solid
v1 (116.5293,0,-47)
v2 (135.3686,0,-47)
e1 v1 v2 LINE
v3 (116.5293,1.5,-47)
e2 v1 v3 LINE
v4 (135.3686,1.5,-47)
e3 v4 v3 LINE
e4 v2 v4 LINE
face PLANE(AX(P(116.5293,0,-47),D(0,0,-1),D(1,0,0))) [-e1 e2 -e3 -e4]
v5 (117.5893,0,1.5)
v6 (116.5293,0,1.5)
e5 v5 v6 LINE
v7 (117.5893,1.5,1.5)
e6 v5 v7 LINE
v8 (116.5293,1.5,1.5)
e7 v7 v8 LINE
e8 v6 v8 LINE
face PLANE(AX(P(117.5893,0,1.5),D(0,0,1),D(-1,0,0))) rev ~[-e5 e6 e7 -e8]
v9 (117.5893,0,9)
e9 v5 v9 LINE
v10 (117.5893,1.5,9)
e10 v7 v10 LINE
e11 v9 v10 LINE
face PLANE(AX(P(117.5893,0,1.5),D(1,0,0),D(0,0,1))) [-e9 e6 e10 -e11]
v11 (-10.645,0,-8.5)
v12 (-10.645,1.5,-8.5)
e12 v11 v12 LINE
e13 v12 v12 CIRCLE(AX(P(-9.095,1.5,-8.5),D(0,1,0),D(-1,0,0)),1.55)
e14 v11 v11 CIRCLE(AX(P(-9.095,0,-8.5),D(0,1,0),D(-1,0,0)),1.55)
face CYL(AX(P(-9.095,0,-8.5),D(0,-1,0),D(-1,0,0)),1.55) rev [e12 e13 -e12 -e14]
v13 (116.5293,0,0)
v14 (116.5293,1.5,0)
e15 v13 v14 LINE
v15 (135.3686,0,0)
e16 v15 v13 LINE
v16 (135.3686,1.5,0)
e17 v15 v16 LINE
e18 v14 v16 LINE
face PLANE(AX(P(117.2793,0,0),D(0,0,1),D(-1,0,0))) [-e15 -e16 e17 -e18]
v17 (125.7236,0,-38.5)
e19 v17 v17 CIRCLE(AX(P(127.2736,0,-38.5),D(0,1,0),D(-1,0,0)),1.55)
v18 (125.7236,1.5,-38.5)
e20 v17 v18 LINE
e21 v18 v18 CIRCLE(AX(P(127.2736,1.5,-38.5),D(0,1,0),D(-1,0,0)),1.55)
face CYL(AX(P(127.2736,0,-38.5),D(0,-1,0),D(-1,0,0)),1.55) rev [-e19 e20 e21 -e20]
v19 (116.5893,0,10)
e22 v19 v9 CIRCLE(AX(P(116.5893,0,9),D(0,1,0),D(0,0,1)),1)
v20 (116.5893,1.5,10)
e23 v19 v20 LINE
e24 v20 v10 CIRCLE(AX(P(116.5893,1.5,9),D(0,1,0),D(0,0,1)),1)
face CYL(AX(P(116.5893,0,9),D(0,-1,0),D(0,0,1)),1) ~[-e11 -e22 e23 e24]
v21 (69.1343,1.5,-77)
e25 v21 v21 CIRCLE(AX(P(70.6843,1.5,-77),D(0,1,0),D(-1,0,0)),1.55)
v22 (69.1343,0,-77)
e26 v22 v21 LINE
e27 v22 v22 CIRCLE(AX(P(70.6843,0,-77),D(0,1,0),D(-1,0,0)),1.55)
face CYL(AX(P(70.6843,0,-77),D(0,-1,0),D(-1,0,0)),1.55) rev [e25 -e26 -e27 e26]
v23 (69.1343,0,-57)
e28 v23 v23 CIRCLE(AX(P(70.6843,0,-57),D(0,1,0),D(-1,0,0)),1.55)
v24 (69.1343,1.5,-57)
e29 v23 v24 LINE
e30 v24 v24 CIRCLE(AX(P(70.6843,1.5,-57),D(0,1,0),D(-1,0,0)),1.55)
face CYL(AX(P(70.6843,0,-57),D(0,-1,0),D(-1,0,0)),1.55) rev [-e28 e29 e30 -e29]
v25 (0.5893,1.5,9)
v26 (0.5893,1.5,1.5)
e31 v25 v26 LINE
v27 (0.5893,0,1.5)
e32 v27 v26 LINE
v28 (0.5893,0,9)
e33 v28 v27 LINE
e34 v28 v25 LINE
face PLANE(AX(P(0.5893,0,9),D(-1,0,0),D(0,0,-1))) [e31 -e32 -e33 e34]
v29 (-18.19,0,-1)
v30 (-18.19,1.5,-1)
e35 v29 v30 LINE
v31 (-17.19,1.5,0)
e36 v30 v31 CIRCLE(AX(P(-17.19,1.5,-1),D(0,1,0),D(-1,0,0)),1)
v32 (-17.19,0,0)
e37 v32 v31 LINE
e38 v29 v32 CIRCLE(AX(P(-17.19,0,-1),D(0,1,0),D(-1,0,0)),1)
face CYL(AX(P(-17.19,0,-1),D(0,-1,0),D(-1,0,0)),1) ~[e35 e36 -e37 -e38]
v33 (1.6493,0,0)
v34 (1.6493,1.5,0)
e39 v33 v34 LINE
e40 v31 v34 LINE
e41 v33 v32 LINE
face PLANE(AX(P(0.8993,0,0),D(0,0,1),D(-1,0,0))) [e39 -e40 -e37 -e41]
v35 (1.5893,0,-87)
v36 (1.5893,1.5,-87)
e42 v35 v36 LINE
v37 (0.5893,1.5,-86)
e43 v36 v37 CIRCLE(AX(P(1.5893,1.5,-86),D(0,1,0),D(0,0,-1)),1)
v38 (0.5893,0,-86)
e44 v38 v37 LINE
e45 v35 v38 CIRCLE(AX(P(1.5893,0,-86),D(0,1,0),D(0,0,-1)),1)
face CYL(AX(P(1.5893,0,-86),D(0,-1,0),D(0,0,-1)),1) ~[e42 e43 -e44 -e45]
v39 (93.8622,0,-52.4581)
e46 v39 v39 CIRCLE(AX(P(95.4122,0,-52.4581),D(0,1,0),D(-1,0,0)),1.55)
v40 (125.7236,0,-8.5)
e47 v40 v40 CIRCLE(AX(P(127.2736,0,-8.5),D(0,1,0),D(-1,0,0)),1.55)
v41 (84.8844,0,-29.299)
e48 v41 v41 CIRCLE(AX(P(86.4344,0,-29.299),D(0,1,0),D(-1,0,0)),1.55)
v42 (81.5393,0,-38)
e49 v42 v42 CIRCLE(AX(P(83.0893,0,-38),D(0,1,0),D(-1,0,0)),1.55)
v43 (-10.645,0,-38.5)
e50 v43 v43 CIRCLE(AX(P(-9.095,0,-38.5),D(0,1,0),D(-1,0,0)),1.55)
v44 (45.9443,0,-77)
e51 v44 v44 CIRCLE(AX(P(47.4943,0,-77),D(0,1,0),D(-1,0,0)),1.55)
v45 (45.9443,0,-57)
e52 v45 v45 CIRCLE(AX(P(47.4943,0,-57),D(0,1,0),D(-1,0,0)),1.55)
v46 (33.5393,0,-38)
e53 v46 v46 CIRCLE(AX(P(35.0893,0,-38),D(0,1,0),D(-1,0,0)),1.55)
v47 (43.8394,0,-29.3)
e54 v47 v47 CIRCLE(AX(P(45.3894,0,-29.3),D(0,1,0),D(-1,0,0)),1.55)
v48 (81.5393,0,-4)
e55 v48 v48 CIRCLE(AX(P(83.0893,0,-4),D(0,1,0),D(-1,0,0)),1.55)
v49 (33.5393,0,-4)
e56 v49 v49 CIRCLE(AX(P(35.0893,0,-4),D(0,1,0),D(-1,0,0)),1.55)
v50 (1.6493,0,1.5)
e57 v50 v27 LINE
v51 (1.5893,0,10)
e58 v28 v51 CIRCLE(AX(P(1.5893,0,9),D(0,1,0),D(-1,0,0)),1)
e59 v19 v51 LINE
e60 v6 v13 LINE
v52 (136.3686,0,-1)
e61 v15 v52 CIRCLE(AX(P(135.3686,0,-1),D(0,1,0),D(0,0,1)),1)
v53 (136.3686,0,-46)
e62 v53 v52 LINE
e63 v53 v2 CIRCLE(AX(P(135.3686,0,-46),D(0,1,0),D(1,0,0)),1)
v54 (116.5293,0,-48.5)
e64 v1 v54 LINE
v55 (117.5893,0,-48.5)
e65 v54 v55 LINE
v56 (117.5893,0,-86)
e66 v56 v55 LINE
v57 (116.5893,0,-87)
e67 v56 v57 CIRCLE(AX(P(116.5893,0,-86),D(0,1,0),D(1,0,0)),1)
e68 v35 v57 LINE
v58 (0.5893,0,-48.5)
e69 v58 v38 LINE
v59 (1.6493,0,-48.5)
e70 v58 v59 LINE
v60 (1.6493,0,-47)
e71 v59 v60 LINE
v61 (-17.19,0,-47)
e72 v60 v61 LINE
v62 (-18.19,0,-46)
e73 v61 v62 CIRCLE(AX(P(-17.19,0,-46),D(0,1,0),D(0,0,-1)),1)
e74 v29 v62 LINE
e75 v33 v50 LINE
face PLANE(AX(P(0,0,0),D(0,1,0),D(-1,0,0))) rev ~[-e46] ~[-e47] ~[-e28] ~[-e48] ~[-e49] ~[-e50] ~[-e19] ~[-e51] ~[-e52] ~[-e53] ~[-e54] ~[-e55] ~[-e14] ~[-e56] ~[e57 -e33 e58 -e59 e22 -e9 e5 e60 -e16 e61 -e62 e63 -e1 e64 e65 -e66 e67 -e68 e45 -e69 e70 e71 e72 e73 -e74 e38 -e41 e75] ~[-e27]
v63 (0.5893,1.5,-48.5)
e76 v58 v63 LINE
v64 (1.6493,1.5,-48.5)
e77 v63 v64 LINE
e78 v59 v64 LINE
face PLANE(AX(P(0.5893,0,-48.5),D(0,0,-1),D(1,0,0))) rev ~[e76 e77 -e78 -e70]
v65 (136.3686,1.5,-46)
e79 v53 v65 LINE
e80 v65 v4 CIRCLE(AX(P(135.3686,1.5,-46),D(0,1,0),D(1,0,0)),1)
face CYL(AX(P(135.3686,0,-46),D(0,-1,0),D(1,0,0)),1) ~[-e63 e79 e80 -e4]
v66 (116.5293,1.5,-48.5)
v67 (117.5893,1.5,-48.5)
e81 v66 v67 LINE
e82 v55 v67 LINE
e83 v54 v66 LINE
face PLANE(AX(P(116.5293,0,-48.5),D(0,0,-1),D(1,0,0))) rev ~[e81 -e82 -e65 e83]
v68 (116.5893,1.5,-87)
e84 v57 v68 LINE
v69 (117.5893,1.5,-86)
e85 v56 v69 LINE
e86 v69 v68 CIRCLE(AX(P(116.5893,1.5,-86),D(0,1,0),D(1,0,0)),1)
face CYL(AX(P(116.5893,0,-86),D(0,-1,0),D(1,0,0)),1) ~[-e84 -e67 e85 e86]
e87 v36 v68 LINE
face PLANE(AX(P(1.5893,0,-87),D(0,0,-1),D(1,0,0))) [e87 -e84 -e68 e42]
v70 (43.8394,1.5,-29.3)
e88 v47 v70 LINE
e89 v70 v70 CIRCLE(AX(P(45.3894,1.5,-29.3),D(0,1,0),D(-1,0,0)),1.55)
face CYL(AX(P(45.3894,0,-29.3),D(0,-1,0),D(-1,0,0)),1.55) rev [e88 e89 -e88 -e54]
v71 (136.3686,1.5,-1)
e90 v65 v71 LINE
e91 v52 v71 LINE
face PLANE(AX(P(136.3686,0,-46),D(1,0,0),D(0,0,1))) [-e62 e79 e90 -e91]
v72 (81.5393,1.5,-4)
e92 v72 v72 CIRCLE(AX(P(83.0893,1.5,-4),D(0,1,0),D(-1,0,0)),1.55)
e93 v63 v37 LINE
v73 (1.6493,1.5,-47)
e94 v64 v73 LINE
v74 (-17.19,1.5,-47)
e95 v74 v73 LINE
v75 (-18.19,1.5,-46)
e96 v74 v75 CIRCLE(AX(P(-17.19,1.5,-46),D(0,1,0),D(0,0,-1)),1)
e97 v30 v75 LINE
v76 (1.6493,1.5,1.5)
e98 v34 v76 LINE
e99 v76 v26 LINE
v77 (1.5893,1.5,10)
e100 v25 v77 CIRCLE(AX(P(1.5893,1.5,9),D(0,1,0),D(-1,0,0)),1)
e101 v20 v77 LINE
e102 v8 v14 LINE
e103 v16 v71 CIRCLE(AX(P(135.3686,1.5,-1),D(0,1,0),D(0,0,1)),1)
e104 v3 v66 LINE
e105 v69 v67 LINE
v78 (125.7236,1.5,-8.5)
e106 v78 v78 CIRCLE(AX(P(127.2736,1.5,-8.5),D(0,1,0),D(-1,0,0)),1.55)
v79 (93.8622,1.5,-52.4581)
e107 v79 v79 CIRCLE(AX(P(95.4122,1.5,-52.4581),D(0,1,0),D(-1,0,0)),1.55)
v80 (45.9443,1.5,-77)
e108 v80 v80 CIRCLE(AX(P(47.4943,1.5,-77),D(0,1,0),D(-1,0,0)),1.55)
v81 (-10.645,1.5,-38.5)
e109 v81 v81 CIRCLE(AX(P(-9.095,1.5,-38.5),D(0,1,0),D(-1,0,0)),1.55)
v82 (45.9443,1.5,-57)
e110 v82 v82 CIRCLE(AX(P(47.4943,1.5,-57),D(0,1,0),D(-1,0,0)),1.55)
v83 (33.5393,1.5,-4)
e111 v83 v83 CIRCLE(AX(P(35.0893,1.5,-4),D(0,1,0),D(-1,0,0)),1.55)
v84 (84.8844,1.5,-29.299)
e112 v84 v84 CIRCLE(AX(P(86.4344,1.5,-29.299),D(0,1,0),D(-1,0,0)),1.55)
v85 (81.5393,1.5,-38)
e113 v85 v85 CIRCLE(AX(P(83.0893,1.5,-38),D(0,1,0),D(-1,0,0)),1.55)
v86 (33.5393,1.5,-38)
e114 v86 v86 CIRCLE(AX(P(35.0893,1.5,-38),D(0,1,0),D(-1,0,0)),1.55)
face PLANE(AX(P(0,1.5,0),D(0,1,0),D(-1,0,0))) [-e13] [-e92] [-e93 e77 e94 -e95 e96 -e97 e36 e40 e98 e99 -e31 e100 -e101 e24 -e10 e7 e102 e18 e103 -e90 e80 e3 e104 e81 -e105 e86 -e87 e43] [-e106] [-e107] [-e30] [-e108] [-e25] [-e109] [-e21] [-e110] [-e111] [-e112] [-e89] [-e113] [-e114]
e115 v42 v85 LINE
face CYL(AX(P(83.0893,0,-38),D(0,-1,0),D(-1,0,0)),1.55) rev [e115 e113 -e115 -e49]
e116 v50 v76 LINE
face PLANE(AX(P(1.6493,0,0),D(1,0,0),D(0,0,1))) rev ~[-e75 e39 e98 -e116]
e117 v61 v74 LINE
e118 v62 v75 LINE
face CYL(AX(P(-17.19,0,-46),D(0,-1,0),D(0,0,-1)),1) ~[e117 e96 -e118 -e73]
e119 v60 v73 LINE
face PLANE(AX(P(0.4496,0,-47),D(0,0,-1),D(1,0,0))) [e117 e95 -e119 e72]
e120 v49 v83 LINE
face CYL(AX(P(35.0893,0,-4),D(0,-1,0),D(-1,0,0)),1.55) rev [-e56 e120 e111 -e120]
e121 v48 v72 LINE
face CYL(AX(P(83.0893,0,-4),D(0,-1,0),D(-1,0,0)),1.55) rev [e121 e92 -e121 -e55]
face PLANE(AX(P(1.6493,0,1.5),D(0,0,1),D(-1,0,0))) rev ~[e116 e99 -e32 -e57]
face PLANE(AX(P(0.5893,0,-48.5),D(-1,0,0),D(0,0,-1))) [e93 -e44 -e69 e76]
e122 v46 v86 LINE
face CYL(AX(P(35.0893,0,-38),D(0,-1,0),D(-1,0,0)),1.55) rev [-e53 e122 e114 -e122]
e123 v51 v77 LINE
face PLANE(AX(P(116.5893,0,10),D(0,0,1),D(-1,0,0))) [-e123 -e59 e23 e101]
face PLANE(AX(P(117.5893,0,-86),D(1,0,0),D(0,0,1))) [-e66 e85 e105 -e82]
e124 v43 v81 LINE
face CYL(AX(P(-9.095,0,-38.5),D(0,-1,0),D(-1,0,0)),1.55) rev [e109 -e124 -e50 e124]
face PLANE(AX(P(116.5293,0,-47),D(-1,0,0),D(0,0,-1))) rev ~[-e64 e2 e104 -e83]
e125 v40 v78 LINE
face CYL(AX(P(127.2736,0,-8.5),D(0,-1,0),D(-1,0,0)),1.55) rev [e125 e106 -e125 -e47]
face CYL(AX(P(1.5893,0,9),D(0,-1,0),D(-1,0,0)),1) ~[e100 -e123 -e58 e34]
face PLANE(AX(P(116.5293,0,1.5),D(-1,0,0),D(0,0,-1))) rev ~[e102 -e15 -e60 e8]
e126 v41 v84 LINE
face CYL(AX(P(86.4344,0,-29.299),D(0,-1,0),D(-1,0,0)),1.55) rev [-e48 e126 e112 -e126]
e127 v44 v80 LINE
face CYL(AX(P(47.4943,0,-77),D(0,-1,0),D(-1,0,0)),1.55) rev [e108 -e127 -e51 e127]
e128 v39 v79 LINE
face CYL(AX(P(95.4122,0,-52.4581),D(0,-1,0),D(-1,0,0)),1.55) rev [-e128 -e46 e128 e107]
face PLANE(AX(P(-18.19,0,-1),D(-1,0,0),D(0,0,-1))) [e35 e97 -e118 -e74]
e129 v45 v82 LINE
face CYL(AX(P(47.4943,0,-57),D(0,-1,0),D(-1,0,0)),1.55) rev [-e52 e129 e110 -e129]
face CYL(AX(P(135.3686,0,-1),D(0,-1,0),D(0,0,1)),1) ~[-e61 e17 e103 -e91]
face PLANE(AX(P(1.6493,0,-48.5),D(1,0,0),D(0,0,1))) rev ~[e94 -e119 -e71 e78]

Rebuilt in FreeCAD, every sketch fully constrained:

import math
import FreeCAD as App
import Part
import Sketcher

V = App.Vector

doc = App.newDocument("Part")
body = doc.addObject("PartDesign::Body", "Body")

# Sketch on XZ plane
sketch1 = body.newObject("Sketcher::SketchObject", "Sketch")
sketch1.AttachmentSupport = (doc.getObject("XZ_Plane"), [""])
sketch1.MapMode = "FlatFace"
sketch1.addGeometry([
    Part.ArcOfCircle(Part.Circle(V(-17.2, -46, 0), V(0, 0, 1), 1), math.radians(180), math.radians(270)),  # 0
    Part.LineSegment(V(-18.2, -46, 0), V(-18.2, -1, 0)),  # 1
    Part.ArcOfCircle(Part.Circle(V(-17.2, -1, 0), V(0, 0, 1), 1), math.radians(90), math.radians(180)),  # 2
    Part.LineSegment(V(-17.2, 0, 0), V(1.6, 0, 0)),  # 3
    Part.LineSegment(V(1.6, 0, 0), V(1.6, 1.5, 0)),  # 4
    Part.LineSegment(V(1.6, 1.5, 0), V(0.6, 1.5, 0)),  # 5
    Part.LineSegment(V(0.6, 1.5, 0), V(0.6, 9, 0)),  # 6
    Part.ArcOfCircle(Part.Circle(V(1.6, 9, 0), V(0, 0, 1), 1), math.radians(90), math.radians(180)),  # 7
    Part.LineSegment(V(1.6, 10, 0), V(116.6, 10, 0)),  # 8
    Part.ArcOfCircle(Part.Circle(V(116.6, 9, 0), V(0, 0, 1), 1), math.radians(0), math.radians(90)),  # 9
    Part.LineSegment(V(117.6, 9, 0), V(117.6, 1.5, 0)),  # 10
    Part.LineSegment(V(117.6, 1.5, 0), V(116.5, 1.5, 0)),  # 11
    Part.LineSegment(V(116.5, 1.5, 0), V(116.5, 0, 0)),  # 12
    Part.LineSegment(V(116.5, 0, 0), V(135.4, 0, 0)),  # 13
    Part.ArcOfCircle(Part.Circle(V(135.4, -1, 0), V(0, 0, 1), 1), math.radians(0), math.radians(90)),  # 14
    Part.LineSegment(V(136.4, -1, 0), V(136.4, -46, 0)),  # 15
    Part.ArcOfCircle(Part.Circle(V(135.4, -46, 0), V(0, 0, 1), 1), math.radians(-90), math.radians(0)),  # 16
    Part.LineSegment(V(135.4, -47, 0), V(116.5, -47, 0)),  # 17
    Part.LineSegment(V(116.5, -47, 0), V(116.5, -48.5, 0)),  # 18
    Part.LineSegment(V(116.5, -48.5, 0), V(117.6, -48.5, 0)),  # 19
    Part.LineSegment(V(117.6, -48.5, 0), V(117.6, -86, 0)),  # 20
    Part.ArcOfCircle(Part.Circle(V(116.6, -86, 0), V(0, 0, 1), 1), math.radians(-90), math.radians(0)),  # 21
    Part.LineSegment(V(116.6, -87, 0), V(1.6, -87, 0)),  # 22
    Part.ArcOfCircle(Part.Circle(V(1.6, -86, 0), V(0, 0, 1), 1), math.radians(180), math.radians(270)),  # 23
    Part.LineSegment(V(0.6, -86, 0), V(0.6, -48.5, 0)),  # 24
    Part.LineSegment(V(0.6, -48.5, 0), V(1.6, -48.5, 0)),  # 25
    Part.LineSegment(V(1.6, -48.5, 0), V(1.6, -47, 0)),  # 26
    Part.LineSegment(V(1.6, -47, 0), V(-17.2, -47, 0)),  # 27
    Part.Circle(V(35.1, -4, 0), V(0, 0, 1), 1.6),  # 28
    Part.Circle(V(70.7, -77, 0), V(0, 0, 1), 1.6),  # 29
    Part.Circle(V(95.4, -52.5, 0), V(0, 0, 1), 1.6),  # 30
    Part.Circle(V(70.7, -57, 0), V(0, 0, 1), 1.6),  # 31
    Part.Circle(V(47.5, -77, 0), V(0, 0, 1), 1.6),  # 32
    Part.Circle(V(47.5, -57, 0), V(0, 0, 1), 1.6),  # 33
    Part.Circle(V(83.1, -38, 0), V(0, 0, 1), 1.6),  # 34
    Part.Circle(V(86.4, -29.3, 0), V(0, 0, 1), 1.6),  # 35
    Part.Circle(V(83.1, -4, 0), V(0, 0, 1), 1.6),  # 36
    Part.Circle(V(45.4, -29.3, 0), V(0, 0, 1), 1.6),  # 37
    Part.Circle(V(35.1, -38, 0), V(0, 0, 1), 1.6),  # 38
    Part.Circle(V(-9.1, -8.5, 0), V(0, 0, 1), 1.6),  # 39
    Part.Circle(V(-9.1, -38.5, 0), V(0, 0, 1), 1.6),  # 40
    Part.Circle(V(127.3, -8.5, 0), V(0, 0, 1), 1.6),  # 41
    Part.Circle(V(127.3, -38.5, 0), V(0, 0, 1), 1.6),  # 42
], False)
sketch1.addConstraint([
    Sketcher.Constraint("Tangent", 0, 1, 1, 1),
    Sketcher.Constraint("Tangent", 1, 2, 2, 2),
    Sketcher.Constraint("Tangent", 2, 1, 3, 1),
    Sketcher.Constraint("Coincident", 3, 2, 4, 1),
    Sketcher.Constraint("Coincident", 4, 2, 5, 1),
    Sketcher.Constraint("Coincident", 5, 2, 6, 1),
    Sketcher.Constraint("Tangent", 6, 2, 7, 2),
    Sketcher.Constraint("Tangent", 7, 1, 8, 1),
    Sketcher.Constraint("Tangent", 8, 2, 9, 2),
    Sketcher.Constraint("Tangent", 9, 1, 10, 1),
    Sketcher.Constraint("Coincident", 10, 2, 11, 1),
    Sketcher.Constraint("Coincident", 11, 2, 12, 1),
    Sketcher.Constraint("Coincident", 12, 2, 13, 1),
    Sketcher.Constraint("Tangent", 13, 2, 14, 2),
    Sketcher.Constraint("Tangent", 14, 1, 15, 1),
    Sketcher.Constraint("Tangent", 15, 2, 16, 2),
    Sketcher.Constraint("Tangent", 16, 1, 17, 1),
    Sketcher.Constraint("Coincident", 17, 2, 18, 1),
    Sketcher.Constraint("Coincident", 18, 2, 19, 1),
    Sketcher.Constraint("Coincident", 19, 2, 20, 1),
    Sketcher.Constraint("Tangent", 20, 2, 21, 2),
    Sketcher.Constraint("Tangent", 21, 1, 22, 1),
    Sketcher.Constraint("Tangent", 22, 2, 23, 2),
    Sketcher.Constraint("Tangent", 23, 1, 24, 1),
    Sketcher.Constraint("Coincident", 24, 2, 25, 1),
    Sketcher.Constraint("Coincident", 25, 2, 26, 1),
    Sketcher.Constraint("Coincident", 26, 2, 27, 1),
    Sketcher.Constraint("Tangent", 27, 2, 0, 2),
    Sketcher.Constraint("Vertical", 1),
    Sketcher.Constraint("Horizontal", 3),
    Sketcher.Constraint("Vertical", 4),
    Sketcher.Constraint("Horizontal", 5),
    Sketcher.Constraint("Vertical", 6),
    Sketcher.Constraint("Horizontal", 8),
    Sketcher.Constraint("Vertical", 10),
    Sketcher.Constraint("Horizontal", 11),
    Sketcher.Constraint("Vertical", 12),
    Sketcher.Constraint("Horizontal", 13),
    Sketcher.Constraint("Vertical", 15),
    Sketcher.Constraint("Horizontal", 17),
    Sketcher.Constraint("Vertical", 18),
    Sketcher.Constraint("Horizontal", 19),
    Sketcher.Constraint("Vertical", 20),
    Sketcher.Constraint("Horizontal", 22),
    Sketcher.Constraint("Vertical", 24),
    Sketcher.Constraint("Horizontal", 25),
    Sketcher.Constraint("Vertical", 26),
    Sketcher.Constraint("Horizontal", 27),
    Sketcher.Constraint("Equal", 0, 2),
    Sketcher.Constraint("Equal", 2, 7),
    Sketcher.Constraint("Equal", 7, 9),
    Sketcher.Constraint("Equal", 9, 14),
    Sketcher.Constraint("Equal", 14, 16),
    Sketcher.Constraint("Equal", 16, 21),
    Sketcher.Constraint("Equal", 21, 23),
    Sketcher.Constraint("Equal", 28, 29),
    Sketcher.Constraint("Equal", 29, 30),
    Sketcher.Constraint("Equal", 30, 31),
    Sketcher.Constraint("Equal", 31, 32),
    Sketcher.Constraint("Equal", 32, 33),
    Sketcher.Constraint("Equal", 33, 34),
    Sketcher.Constraint("Equal", 34, 35),
    Sketcher.Constraint("Equal", 35, 36),
    Sketcher.Constraint("Equal", 36, 37),
    Sketcher.Constraint("Equal", 37, 38),
    Sketcher.Constraint("Equal", 38, 39),
    Sketcher.Constraint("Equal", 39, 40),
    Sketcher.Constraint("Equal", 40, 41),
    Sketcher.Constraint("Equal", 41, 42),
    Sketcher.Constraint("PointOnObject", 2, 1, -1),
    Sketcher.Constraint("PointOnObject", 12, 2, -1),
    Sketcher.Constraint("Horizontal", 0, 3, 16, 3),
    Sketcher.Constraint("Horizontal", 29, 3, 32, 3),
    Sketcher.Constraint("Horizontal", 31, 3, 33, 3),
    Sketcher.Constraint("Horizontal", 28, 3, 36, 3),
    Sketcher.Constraint("Horizontal", 34, 3, 38, 3),
    Sketcher.Constraint("Horizontal", 39, 3, 41, 3),
    Sketcher.Constraint("Horizontal", 40, 3, 42, 3),
    Sketcher.Constraint("Horizontal", 5, 2, 10, 2),
    Sketcher.Constraint("Horizontal", 19, 2, 24, 2),
    Sketcher.Constraint("Vertical", 9, 3, 21, 3),
    Sketcher.Constraint("Vertical", 7, 3, 23, 3),
    Sketcher.Constraint("Vertical", 29, 3, 31, 3),
    Sketcher.Constraint("Vertical", 32, 3, 33, 3),
    Sketcher.Constraint("Vertical", 34, 3, 36, 3),
    Sketcher.Constraint("Vertical", 28, 3, 38, 3),
    Sketcher.Constraint("Vertical", 39, 3, 40, 3),
    Sketcher.Constraint("Vertical", 41, 3, 42, 3),
    Sketcher.Constraint("Vertical", 12, 2, 17, 2),
    Sketcher.Constraint("Vertical", 4, 2, 25, 2),
    Sketcher.Constraint("Equal", 5, 11),
    Sketcher.Constraint("Equal", 3, 13),
    Sketcher.Constraint("Equal", 12, 18),
    Sketcher.Constraint("Radius", 0, 1.0),
    Sketcher.Constraint("Diameter", 28, 3.1),
    Sketcher.Constraint("DistanceX", 8, 1, 8, 2, 115.0),
    Sketcher.Constraint("DistanceY", 1, 1, 1, 2, 45.0),
    Sketcher.Constraint("DistanceY", 4, 1, 4, 2, 1.5),
    Sketcher.Constraint("DistanceY", 6, 1, 6, 2, 7.5),
    Sketcher.Constraint("DistanceY", 20, 2, 20, 1, 37.5),
    Sketcher.Constraint("DistanceY", 28, 3, -1, 1, 4.0),
    Sketcher.Constraint("DistanceY", 29, 3, -1, 1, 77.0),
    Sketcher.Constraint("DistanceY", 31, 3, -1, 1, 57.0),
    Sketcher.Constraint("DistanceY", 34, 3, -1, 1, 38.0),
    Sketcher.Constraint("DistanceX", 28, 3, 36, 3, 48.0),
    Sketcher.Constraint("DistanceY", 40, 3, 39, 3, 30.0),
    Sketcher.Constraint("DistanceY", 39, 3, 4, 2, 10.0),
    Sketcher.Constraint("DistanceX", 5, 2, 5, 1, 1.06),
    Sketcher.Constraint("DistanceY", 37, 3, -1, 1, 29.3),
    Sketcher.Constraint("DistanceX", 7, 3, 28, 3, 33.5),
    Sketcher.Constraint("DistanceX", 28, 3, 37, 3, 10.3),
    Sketcher.Constraint("DistanceX", 0, 3, -1, 1, 17.19),
    Sketcher.Constraint("DistanceX", 32, 3, 29, 3, 23.19),
    Sketcher.Constraint("DistanceX", 31, 3, 35, 3, 15.75),
    Sketcher.Constraint("DistanceX", 3, 1, 3, 2, 18.8393),
    Sketcher.Constraint("DistanceY", 30, 3, -1, 1, 52.458),
    Sketcher.Constraint("DistanceY", 35, 3, -1, 1, 29.299),
    Sketcher.Constraint("DistanceX", 39, 3, -1, 1, 9.095),
    Sketcher.Constraint("DistanceX", 29, 3, 21, 3, 45.905),
    Sketcher.Constraint("DistanceX", 29, 3, 30, 3, 24.728),
    Sketcher.Constraint("DistanceX", 41, 3, 14, 3, 8.095),
])
pad1 = body.newObject("PartDesign::Pad", "Pad")
pad1.Profile = sketch1
pad1.Length = 1.5
pad1.Reversed = True

doc.recompute()
